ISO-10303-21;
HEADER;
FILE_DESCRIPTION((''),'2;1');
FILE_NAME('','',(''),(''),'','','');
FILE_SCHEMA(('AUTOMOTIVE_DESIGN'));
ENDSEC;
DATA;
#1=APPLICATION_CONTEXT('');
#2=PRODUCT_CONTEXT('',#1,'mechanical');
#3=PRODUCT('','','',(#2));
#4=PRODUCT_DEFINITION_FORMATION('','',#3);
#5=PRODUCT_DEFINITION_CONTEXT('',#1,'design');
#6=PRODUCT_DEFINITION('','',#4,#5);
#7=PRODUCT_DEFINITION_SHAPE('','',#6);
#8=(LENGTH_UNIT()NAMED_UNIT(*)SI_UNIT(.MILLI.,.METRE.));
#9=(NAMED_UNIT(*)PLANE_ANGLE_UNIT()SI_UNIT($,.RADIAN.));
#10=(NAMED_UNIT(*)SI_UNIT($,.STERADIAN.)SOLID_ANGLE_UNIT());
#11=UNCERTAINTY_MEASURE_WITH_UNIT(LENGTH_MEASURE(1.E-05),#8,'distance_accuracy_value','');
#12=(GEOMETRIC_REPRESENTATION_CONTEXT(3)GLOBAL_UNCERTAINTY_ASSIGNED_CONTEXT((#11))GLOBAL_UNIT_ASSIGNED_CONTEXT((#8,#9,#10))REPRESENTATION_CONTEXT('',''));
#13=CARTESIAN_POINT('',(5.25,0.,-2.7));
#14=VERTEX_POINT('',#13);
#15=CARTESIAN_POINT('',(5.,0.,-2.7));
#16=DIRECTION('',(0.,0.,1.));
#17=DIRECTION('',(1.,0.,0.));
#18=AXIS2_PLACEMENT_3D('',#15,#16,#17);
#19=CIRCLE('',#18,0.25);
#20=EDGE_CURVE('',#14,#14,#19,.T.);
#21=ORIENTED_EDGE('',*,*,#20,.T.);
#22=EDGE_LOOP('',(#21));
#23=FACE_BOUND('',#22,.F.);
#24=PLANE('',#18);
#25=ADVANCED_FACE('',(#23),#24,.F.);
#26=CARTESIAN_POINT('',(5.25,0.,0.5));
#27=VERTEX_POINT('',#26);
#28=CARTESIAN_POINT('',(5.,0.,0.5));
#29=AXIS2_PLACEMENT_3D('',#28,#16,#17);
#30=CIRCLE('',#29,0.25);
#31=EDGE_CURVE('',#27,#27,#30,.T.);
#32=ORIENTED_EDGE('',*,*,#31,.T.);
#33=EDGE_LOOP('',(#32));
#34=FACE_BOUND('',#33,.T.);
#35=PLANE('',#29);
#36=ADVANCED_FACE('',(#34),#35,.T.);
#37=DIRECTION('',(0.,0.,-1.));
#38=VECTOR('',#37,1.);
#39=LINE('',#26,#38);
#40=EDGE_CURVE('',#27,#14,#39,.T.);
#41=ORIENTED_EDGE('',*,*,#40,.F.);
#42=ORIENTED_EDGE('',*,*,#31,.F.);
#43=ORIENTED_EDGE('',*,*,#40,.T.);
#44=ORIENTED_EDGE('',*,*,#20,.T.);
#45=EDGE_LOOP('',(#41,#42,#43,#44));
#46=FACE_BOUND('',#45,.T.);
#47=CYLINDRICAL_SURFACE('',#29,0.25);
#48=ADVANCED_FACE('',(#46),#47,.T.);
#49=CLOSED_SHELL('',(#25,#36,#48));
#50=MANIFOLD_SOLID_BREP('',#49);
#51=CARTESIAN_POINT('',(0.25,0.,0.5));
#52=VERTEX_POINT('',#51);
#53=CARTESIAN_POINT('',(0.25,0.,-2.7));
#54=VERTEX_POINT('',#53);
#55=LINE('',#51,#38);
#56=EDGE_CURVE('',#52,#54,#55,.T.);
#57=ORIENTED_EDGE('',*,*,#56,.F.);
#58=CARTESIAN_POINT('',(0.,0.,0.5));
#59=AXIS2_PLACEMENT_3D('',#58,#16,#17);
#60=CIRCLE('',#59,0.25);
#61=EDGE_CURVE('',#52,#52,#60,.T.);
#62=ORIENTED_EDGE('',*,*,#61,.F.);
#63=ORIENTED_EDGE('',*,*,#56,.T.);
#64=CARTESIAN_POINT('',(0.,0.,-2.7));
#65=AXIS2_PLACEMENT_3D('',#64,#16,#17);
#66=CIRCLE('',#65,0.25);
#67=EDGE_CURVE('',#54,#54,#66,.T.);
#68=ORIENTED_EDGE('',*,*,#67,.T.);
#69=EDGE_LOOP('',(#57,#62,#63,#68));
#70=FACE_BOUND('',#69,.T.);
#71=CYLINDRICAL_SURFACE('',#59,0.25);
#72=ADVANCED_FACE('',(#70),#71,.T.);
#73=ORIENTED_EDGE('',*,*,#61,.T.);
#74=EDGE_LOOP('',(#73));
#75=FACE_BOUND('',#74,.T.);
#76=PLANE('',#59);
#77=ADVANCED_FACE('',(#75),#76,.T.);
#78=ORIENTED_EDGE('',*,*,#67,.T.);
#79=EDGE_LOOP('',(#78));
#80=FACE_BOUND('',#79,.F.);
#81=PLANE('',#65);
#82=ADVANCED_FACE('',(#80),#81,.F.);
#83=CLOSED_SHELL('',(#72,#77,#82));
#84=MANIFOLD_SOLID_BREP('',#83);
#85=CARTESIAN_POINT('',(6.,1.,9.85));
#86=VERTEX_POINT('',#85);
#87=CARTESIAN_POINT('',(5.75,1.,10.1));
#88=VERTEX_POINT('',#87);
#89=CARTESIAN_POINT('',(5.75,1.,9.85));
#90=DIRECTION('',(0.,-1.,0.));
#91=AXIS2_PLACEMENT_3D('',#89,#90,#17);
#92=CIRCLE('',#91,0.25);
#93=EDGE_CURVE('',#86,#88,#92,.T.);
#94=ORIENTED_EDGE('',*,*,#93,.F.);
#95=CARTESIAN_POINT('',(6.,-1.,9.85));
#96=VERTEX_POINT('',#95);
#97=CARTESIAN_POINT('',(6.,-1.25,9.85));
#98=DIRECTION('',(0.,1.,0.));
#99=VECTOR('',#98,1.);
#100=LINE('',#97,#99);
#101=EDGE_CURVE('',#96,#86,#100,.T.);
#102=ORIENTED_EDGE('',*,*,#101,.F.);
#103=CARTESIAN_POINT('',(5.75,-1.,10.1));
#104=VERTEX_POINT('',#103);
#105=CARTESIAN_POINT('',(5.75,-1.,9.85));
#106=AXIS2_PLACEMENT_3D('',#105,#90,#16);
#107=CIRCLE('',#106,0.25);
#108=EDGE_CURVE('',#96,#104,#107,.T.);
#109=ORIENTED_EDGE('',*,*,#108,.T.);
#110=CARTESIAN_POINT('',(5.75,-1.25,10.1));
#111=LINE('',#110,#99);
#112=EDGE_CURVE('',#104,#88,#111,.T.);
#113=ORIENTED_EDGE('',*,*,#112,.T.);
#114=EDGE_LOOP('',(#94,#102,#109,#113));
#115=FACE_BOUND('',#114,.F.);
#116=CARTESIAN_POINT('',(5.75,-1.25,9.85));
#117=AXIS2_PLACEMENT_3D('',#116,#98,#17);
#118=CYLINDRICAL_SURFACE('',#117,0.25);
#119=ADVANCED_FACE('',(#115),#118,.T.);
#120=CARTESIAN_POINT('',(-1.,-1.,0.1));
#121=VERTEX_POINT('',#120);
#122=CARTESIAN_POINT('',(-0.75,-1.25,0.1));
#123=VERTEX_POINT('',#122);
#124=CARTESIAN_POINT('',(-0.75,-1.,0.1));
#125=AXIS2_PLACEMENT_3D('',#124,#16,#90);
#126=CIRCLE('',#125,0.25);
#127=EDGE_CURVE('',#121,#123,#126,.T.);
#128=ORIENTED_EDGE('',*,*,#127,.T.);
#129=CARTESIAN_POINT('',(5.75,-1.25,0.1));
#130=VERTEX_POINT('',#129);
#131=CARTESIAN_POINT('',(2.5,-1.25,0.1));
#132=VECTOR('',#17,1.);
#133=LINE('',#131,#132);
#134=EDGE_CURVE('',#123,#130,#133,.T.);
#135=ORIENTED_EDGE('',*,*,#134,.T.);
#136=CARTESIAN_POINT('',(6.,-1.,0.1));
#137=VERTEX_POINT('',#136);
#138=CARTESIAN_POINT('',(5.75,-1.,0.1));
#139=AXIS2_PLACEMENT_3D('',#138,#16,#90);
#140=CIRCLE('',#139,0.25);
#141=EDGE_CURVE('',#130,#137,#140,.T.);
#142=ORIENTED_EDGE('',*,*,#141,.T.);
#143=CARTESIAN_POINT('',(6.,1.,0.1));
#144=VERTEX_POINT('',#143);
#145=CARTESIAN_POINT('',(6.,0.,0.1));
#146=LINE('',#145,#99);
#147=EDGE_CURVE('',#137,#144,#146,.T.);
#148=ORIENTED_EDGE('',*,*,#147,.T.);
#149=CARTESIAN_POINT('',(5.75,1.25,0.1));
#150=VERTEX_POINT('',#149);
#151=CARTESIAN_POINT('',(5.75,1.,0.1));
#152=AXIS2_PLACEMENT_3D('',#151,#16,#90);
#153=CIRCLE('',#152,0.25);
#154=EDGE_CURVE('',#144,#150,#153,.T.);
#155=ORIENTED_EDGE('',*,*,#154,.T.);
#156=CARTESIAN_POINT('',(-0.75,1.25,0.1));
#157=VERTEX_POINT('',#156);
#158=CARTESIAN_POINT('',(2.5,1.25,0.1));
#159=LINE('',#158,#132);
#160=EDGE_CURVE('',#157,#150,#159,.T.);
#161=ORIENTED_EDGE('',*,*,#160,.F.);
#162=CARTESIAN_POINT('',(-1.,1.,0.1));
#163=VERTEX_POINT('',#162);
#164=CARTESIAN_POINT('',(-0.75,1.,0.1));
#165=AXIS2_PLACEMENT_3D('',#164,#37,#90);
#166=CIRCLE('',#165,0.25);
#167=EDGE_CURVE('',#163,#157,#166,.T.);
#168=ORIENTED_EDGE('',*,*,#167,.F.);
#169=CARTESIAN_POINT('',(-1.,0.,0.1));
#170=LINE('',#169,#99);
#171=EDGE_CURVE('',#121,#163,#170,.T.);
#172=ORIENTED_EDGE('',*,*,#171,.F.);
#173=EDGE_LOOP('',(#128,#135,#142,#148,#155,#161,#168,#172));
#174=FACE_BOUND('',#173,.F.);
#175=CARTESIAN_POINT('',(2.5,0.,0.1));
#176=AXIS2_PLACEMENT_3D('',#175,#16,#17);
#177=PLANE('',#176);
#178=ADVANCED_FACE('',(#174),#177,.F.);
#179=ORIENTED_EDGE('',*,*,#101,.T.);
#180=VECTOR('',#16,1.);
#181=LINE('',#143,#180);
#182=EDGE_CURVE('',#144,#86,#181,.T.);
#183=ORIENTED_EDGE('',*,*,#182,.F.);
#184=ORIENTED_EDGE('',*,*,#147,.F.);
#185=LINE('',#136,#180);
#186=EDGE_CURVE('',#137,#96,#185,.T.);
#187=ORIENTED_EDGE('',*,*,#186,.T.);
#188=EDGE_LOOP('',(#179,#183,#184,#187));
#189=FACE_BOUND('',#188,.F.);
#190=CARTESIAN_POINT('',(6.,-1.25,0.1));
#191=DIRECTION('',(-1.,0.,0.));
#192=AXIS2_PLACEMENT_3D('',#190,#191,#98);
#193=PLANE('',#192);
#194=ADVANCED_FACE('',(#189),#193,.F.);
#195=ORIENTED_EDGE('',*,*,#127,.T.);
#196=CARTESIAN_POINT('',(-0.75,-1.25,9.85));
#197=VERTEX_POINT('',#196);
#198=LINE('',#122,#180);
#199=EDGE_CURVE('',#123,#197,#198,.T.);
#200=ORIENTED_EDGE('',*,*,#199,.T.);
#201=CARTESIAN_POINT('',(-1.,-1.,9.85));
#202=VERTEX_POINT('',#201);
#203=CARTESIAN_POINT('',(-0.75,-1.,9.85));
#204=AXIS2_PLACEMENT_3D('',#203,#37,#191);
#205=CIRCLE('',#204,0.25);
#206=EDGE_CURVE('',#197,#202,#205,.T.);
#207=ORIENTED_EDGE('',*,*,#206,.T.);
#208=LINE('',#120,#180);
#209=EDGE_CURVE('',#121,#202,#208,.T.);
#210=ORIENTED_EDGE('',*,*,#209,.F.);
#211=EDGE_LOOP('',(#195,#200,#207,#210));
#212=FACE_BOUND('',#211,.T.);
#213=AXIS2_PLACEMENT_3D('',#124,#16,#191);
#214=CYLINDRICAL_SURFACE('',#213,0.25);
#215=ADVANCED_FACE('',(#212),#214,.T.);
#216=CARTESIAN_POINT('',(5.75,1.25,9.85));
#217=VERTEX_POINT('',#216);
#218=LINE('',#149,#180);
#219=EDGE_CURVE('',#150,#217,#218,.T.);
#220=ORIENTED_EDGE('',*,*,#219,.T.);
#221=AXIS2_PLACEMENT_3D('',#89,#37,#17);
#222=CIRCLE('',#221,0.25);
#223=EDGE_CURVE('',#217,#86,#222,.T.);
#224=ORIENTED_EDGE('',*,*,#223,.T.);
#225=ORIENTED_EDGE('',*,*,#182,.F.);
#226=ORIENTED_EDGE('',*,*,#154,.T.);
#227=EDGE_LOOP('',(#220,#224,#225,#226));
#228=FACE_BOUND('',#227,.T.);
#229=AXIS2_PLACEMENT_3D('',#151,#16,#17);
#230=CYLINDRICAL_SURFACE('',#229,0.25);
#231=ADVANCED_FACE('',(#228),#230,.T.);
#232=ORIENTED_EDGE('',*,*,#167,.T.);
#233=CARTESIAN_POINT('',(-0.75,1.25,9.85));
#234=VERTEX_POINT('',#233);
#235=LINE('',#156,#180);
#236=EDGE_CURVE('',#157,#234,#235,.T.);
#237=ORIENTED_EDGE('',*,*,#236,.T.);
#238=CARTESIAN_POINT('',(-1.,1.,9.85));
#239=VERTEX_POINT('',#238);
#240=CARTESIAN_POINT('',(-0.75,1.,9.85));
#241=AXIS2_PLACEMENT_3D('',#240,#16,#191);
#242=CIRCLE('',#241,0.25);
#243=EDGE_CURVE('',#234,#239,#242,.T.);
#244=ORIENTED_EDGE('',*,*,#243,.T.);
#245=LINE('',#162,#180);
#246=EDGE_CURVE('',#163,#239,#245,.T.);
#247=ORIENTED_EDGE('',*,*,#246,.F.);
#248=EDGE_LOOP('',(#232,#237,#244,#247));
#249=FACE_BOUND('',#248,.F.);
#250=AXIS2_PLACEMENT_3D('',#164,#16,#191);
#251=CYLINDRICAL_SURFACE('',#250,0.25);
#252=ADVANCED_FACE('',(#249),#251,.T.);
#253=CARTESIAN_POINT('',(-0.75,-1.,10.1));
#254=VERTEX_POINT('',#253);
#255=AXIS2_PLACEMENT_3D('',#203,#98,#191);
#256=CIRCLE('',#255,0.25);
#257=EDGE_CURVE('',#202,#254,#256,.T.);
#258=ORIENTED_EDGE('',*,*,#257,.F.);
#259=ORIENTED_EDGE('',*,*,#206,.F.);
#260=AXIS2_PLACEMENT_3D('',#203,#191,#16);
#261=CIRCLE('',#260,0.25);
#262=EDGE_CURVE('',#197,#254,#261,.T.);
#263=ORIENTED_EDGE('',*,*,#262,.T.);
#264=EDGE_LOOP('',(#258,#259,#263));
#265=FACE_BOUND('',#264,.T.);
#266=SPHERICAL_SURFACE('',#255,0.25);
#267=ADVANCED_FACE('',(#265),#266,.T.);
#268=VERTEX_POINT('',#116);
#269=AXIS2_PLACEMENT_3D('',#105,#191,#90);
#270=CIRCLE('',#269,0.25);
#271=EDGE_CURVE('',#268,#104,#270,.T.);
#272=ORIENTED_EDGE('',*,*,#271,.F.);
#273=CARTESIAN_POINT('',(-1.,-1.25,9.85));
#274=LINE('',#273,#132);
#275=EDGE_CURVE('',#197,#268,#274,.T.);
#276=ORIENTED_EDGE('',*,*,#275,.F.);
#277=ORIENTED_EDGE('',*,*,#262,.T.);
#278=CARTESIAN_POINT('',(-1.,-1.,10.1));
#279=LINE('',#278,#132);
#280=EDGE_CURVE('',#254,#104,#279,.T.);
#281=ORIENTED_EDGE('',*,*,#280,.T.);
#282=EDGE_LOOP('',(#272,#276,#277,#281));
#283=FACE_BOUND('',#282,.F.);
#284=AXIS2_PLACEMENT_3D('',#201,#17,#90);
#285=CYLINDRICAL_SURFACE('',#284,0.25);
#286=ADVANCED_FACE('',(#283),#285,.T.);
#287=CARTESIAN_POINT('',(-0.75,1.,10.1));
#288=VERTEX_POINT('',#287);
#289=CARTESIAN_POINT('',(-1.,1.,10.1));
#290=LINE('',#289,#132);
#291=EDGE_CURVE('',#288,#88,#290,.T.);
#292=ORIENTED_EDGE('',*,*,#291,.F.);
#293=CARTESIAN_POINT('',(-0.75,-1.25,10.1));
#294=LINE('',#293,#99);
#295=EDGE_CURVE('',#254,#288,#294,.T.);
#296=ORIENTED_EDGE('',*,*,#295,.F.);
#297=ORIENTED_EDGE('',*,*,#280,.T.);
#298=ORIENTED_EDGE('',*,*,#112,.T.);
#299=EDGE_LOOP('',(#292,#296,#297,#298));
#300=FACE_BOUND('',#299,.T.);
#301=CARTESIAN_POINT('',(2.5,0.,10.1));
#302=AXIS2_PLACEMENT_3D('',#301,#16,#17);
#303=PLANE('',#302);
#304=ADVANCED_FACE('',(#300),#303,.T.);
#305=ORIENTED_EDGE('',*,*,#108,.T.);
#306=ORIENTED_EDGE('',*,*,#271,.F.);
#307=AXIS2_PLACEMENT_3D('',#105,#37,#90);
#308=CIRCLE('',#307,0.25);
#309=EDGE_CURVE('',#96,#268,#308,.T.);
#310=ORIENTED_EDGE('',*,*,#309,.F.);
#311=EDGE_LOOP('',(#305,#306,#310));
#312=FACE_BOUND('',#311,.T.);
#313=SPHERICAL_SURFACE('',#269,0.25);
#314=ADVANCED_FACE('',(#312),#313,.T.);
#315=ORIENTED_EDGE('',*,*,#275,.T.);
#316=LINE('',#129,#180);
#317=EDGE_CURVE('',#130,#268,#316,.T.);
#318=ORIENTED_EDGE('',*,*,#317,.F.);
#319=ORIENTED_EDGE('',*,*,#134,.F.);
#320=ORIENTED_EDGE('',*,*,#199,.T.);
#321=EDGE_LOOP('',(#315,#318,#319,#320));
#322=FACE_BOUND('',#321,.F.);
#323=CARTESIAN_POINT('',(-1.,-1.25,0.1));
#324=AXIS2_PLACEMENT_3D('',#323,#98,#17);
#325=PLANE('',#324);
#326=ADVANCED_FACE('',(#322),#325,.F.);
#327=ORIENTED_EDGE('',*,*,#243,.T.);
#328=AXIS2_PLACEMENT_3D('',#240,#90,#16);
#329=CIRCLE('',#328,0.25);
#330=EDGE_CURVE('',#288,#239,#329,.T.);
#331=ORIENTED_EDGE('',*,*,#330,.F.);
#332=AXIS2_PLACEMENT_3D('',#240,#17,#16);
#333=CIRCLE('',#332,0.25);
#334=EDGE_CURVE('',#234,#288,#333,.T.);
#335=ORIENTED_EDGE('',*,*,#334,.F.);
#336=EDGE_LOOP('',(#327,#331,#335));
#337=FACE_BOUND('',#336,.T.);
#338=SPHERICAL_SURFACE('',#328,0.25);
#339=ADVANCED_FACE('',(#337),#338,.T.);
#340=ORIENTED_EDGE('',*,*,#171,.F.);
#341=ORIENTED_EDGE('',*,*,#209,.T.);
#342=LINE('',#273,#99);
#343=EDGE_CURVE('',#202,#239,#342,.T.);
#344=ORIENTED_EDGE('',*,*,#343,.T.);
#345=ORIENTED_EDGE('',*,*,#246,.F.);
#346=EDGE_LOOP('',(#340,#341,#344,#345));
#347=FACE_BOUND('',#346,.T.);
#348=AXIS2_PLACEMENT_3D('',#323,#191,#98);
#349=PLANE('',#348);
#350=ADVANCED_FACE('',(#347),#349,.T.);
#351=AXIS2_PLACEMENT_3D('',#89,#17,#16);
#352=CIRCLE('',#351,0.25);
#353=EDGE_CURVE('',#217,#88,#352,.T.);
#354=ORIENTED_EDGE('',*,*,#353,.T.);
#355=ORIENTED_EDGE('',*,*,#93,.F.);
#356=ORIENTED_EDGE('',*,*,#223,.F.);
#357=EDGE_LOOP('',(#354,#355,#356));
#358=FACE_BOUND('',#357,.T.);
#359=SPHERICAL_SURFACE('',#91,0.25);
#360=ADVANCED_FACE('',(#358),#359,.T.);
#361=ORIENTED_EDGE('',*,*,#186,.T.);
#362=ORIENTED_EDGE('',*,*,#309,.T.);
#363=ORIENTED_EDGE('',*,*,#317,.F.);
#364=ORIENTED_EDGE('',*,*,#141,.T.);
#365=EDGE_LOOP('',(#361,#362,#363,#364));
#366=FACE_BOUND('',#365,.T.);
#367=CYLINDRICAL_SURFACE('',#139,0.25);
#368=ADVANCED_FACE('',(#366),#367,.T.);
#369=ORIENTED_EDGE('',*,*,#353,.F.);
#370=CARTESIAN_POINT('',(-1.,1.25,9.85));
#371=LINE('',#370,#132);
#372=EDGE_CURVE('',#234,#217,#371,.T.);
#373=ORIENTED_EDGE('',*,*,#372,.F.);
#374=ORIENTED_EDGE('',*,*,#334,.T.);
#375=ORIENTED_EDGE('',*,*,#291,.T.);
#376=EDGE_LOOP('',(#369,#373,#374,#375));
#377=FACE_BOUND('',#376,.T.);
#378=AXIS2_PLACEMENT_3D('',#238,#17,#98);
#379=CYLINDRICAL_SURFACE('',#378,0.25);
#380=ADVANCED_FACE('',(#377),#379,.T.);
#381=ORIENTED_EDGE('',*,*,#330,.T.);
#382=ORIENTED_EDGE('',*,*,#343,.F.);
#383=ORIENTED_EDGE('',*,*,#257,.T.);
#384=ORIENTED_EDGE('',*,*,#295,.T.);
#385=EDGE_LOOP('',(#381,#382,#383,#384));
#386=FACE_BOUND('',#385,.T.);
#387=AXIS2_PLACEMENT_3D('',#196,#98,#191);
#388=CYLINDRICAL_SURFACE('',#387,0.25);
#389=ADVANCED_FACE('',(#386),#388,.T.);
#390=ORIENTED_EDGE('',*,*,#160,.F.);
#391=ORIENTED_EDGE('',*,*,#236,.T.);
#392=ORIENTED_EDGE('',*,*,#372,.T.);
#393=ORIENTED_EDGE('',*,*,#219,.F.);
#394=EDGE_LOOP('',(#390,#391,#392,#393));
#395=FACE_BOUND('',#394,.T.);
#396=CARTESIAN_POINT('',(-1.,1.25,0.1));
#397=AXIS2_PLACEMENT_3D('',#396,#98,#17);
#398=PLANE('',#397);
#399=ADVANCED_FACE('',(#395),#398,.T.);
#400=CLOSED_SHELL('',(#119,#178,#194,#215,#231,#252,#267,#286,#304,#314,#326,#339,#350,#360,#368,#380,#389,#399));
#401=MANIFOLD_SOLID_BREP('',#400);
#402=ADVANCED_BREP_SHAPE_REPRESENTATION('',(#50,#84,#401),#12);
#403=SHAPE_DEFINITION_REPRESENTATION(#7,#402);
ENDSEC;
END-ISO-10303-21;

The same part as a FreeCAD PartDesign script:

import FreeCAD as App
import Part
import Sketcher

V = App.Vector


def edges_at(feature, points):
    """Names of the edges that pass closest to the given points."""
    edges = feature.Shape.Edges
    near = lambda p: min(range(len(edges)), key=lambda i: edges[i].distToShape(Part.Vertex(*p))[0])
    return sorted({f"Edge{near(p) + 1}" for p in points})


def add_polygon(sketch, points):
    """Adds a closed chain of lines whose ends are joined by coincident constraints."""
    first, n = sketch.GeometryCount, len(points)
    for a, b in zip(points, points[1:] + points[:1]):
        sketch.addGeometry(Part.LineSegment(App.Vector(*a, 0), App.Vector(*b, 0)), False)
    for i in range(n):
        sketch.addConstraint(Sketcher.Constraint("Coincident", first + i, 2, first + (i + 1) % n, 1))

doc = App.newDocument("Part")
body = doc.addObject("PartDesign::Body", "Body")

# Sketch on XY plane
sketch1 = body.newObject("Sketcher::SketchObject", "Sketch")
sketch1.AttachmentSupport = (doc.getObject("XY_Plane"), [""])
sketch1.MapMode = "FlatFace"
sketch1.AttachmentOffset = App.Placement(V(0, 0, 0.1), App.Rotation())
add_polygon(sketch1, [(-1, 1.2), (-1, -1.2), (6, -1.2), (6, 1.2)])  # lines 0-3
sketch1.addConstraint([
    Sketcher.Constraint("Vertical", 0),
    Sketcher.Constraint("Horizontal", 1),
    Sketcher.Constraint("Vertical", 2),
    Sketcher.Constraint("Horizontal", 3),
    Sketcher.Constraint("DistanceX", 1, 1, 1, 2, 7.0),
    Sketcher.Constraint("DistanceY", 0, 2, 0, 1, 2.5),
    Sketcher.Constraint("DistanceX", 0, 2, -1, 1, 1.0),
    Sketcher.Constraint("DistanceY", 0, 2, -1, 1, 1.25),
])
pad1 = body.newObject("PartDesign::Pad", "Pad")
pad1.Profile = sketch1
pad1.Length = 10
doc.recompute()

fillet = body.newObject("PartDesign::Fillet", "Fillet")
fillet.Base = (pad1, edges_at(pad1, [
    (-1, 0, 10.1),
    (-1, -1.25, 5.1),
    (2.5, -1.25, 10.1),
    (6, -1.25, 5.1),
    (6, 0, 10.1),
    (6, 1.25, 5.1),
    (2.5, 1.25, 10.1),
    (-1, 1.25, 5.1),
]))
fillet.Radius = 0.25
body2 = doc.addObject("PartDesign::Body", "Body001")
body2.AllowCompound = True

# Sketch on XY plane
sketch2 = body2.newObject("Sketcher::SketchObject", "Sketch001")
sketch2.AttachmentSupport = (doc.getObject("XY_Plane001"), [""])
sketch2.MapMode = "FlatFace"
sketch2.AttachmentOffset = App.Placement(V(0, 0, 0.5), App.Rotation())
sketch2.addGeometry([
    Part.Circle(V(0, 0, 0), V(0, 0, 1), 0.25),
    Part.Circle(V(5, 0, 0), V(0, 0, 1), 0.25),
], False)
sketch2.addConstraint([
    Sketcher.Constraint("Coincident", 0, 3, -1, 1),
    Sketcher.Constraint("Equal", 0, 1),
    Sketcher.Constraint("PointOnObject", 1, 3, -1),
    Sketcher.Constraint("Diameter", 0, 0.5),
    Sketcher.Constraint("DistanceX", -1, 1, 1, 3, 5.0),
])
pad2 = body2.newObject("PartDesign::Pad", "Pad001")
pad2.Profile = sketch2
pad2.Length = 3.2
pad2.Reversed = True

doc.recompute()
